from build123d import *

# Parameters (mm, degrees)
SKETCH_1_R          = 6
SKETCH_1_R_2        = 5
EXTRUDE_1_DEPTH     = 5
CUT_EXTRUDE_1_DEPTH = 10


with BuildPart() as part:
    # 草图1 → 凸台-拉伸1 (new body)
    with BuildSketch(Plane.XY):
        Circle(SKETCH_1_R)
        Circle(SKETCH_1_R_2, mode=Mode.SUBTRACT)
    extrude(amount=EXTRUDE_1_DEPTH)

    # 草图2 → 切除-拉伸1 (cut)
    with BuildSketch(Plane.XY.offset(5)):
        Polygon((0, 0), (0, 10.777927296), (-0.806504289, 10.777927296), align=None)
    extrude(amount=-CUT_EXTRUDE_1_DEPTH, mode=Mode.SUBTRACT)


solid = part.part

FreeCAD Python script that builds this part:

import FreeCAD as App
import Part
import Sketcher
from FreeCAD import Vector
Q = App.Units.Quantity

doc = App.newDocument("Part")
body = doc.addObject("PartDesign::Body", "Body")

sketch1 = doc.addObject("Sketcher::SketchObject", "Sketch")
body.addObject(sketch1)
sketch1.AttachmentSupport = (doc.XY_Plane, [""])
sketch1.MapMode = "FlatFace"
sketch1.addGeometry([
    Part.Circle(Vector(0, 0, 0), Vector(0, 0, 1), 6),
    Part.Circle(Vector(0, 0, 0), Vector(0, 0, 1), 5),
], False)
sketch1.addConstraint([
    Sketcher.Constraint("Coincident", 0, 3, -1, 1),
    Sketcher.Constraint("Coincident", 1, 3, -1, 1),
    Sketcher.Constraint("Diameter", 0, Q("12 mm")),
    Sketcher.Constraint("Diameter", 1, Q("10 mm")),
])
pad1 = doc.addObject("PartDesign::Pad", "Pad")
body.addObject(pad1)
pad1.Profile = sketch1
pad1.Length = 5

sketch2 = doc.addObject("Sketcher::SketchObject", "Sketch001")
body.addObject(sketch2)
sketch2.AttachmentSupport = (doc.XY_Plane, [""])
sketch2.MapMode = "FlatFace"
sketch2.AttachmentOffset = App.Placement(Vector(0, 0, 5), App.Rotation())
sketch2.addGeometry([
    Part.LineSegment(Vector(0, 0, 0), Vector(0, 10.8, 0)),
    Part.LineSegment(Vector(0, 10.8, 0), Vector(-0.8, 10.8, 0)),
    Part.LineSegment(Vector(-0.8, 10.8, 0), Vector(0, 0, 0)),
], False)
sketch2.addConstraint([
    Sketcher.Constraint("Coincident", 0, 2, 1, 1),
    Sketcher.Constraint("Coincident", 1, 2, 2, 1),
    Sketcher.Constraint("Coincident", 2, 2, 0, 1),
    Sketcher.Constraint("Vertical", 0),
    Sketcher.Constraint("Horizontal", 1),
    Sketcher.Constraint("Coincident", 2, 2, -1, 1),
    Sketcher.Constraint("Distance", 2, Q("10.80806 mm")),
    Sketcher.Constraint("DistanceX", 1, 2, 1, 1, Q("0.806504 mm")),
])
pocket1 = doc.addObject("PartDesign::Pocket", "Pocket")
body.addObject(pocket1)
pocket1.Profile = sketch2
pocket1.Length = 10

doc.recompute()
